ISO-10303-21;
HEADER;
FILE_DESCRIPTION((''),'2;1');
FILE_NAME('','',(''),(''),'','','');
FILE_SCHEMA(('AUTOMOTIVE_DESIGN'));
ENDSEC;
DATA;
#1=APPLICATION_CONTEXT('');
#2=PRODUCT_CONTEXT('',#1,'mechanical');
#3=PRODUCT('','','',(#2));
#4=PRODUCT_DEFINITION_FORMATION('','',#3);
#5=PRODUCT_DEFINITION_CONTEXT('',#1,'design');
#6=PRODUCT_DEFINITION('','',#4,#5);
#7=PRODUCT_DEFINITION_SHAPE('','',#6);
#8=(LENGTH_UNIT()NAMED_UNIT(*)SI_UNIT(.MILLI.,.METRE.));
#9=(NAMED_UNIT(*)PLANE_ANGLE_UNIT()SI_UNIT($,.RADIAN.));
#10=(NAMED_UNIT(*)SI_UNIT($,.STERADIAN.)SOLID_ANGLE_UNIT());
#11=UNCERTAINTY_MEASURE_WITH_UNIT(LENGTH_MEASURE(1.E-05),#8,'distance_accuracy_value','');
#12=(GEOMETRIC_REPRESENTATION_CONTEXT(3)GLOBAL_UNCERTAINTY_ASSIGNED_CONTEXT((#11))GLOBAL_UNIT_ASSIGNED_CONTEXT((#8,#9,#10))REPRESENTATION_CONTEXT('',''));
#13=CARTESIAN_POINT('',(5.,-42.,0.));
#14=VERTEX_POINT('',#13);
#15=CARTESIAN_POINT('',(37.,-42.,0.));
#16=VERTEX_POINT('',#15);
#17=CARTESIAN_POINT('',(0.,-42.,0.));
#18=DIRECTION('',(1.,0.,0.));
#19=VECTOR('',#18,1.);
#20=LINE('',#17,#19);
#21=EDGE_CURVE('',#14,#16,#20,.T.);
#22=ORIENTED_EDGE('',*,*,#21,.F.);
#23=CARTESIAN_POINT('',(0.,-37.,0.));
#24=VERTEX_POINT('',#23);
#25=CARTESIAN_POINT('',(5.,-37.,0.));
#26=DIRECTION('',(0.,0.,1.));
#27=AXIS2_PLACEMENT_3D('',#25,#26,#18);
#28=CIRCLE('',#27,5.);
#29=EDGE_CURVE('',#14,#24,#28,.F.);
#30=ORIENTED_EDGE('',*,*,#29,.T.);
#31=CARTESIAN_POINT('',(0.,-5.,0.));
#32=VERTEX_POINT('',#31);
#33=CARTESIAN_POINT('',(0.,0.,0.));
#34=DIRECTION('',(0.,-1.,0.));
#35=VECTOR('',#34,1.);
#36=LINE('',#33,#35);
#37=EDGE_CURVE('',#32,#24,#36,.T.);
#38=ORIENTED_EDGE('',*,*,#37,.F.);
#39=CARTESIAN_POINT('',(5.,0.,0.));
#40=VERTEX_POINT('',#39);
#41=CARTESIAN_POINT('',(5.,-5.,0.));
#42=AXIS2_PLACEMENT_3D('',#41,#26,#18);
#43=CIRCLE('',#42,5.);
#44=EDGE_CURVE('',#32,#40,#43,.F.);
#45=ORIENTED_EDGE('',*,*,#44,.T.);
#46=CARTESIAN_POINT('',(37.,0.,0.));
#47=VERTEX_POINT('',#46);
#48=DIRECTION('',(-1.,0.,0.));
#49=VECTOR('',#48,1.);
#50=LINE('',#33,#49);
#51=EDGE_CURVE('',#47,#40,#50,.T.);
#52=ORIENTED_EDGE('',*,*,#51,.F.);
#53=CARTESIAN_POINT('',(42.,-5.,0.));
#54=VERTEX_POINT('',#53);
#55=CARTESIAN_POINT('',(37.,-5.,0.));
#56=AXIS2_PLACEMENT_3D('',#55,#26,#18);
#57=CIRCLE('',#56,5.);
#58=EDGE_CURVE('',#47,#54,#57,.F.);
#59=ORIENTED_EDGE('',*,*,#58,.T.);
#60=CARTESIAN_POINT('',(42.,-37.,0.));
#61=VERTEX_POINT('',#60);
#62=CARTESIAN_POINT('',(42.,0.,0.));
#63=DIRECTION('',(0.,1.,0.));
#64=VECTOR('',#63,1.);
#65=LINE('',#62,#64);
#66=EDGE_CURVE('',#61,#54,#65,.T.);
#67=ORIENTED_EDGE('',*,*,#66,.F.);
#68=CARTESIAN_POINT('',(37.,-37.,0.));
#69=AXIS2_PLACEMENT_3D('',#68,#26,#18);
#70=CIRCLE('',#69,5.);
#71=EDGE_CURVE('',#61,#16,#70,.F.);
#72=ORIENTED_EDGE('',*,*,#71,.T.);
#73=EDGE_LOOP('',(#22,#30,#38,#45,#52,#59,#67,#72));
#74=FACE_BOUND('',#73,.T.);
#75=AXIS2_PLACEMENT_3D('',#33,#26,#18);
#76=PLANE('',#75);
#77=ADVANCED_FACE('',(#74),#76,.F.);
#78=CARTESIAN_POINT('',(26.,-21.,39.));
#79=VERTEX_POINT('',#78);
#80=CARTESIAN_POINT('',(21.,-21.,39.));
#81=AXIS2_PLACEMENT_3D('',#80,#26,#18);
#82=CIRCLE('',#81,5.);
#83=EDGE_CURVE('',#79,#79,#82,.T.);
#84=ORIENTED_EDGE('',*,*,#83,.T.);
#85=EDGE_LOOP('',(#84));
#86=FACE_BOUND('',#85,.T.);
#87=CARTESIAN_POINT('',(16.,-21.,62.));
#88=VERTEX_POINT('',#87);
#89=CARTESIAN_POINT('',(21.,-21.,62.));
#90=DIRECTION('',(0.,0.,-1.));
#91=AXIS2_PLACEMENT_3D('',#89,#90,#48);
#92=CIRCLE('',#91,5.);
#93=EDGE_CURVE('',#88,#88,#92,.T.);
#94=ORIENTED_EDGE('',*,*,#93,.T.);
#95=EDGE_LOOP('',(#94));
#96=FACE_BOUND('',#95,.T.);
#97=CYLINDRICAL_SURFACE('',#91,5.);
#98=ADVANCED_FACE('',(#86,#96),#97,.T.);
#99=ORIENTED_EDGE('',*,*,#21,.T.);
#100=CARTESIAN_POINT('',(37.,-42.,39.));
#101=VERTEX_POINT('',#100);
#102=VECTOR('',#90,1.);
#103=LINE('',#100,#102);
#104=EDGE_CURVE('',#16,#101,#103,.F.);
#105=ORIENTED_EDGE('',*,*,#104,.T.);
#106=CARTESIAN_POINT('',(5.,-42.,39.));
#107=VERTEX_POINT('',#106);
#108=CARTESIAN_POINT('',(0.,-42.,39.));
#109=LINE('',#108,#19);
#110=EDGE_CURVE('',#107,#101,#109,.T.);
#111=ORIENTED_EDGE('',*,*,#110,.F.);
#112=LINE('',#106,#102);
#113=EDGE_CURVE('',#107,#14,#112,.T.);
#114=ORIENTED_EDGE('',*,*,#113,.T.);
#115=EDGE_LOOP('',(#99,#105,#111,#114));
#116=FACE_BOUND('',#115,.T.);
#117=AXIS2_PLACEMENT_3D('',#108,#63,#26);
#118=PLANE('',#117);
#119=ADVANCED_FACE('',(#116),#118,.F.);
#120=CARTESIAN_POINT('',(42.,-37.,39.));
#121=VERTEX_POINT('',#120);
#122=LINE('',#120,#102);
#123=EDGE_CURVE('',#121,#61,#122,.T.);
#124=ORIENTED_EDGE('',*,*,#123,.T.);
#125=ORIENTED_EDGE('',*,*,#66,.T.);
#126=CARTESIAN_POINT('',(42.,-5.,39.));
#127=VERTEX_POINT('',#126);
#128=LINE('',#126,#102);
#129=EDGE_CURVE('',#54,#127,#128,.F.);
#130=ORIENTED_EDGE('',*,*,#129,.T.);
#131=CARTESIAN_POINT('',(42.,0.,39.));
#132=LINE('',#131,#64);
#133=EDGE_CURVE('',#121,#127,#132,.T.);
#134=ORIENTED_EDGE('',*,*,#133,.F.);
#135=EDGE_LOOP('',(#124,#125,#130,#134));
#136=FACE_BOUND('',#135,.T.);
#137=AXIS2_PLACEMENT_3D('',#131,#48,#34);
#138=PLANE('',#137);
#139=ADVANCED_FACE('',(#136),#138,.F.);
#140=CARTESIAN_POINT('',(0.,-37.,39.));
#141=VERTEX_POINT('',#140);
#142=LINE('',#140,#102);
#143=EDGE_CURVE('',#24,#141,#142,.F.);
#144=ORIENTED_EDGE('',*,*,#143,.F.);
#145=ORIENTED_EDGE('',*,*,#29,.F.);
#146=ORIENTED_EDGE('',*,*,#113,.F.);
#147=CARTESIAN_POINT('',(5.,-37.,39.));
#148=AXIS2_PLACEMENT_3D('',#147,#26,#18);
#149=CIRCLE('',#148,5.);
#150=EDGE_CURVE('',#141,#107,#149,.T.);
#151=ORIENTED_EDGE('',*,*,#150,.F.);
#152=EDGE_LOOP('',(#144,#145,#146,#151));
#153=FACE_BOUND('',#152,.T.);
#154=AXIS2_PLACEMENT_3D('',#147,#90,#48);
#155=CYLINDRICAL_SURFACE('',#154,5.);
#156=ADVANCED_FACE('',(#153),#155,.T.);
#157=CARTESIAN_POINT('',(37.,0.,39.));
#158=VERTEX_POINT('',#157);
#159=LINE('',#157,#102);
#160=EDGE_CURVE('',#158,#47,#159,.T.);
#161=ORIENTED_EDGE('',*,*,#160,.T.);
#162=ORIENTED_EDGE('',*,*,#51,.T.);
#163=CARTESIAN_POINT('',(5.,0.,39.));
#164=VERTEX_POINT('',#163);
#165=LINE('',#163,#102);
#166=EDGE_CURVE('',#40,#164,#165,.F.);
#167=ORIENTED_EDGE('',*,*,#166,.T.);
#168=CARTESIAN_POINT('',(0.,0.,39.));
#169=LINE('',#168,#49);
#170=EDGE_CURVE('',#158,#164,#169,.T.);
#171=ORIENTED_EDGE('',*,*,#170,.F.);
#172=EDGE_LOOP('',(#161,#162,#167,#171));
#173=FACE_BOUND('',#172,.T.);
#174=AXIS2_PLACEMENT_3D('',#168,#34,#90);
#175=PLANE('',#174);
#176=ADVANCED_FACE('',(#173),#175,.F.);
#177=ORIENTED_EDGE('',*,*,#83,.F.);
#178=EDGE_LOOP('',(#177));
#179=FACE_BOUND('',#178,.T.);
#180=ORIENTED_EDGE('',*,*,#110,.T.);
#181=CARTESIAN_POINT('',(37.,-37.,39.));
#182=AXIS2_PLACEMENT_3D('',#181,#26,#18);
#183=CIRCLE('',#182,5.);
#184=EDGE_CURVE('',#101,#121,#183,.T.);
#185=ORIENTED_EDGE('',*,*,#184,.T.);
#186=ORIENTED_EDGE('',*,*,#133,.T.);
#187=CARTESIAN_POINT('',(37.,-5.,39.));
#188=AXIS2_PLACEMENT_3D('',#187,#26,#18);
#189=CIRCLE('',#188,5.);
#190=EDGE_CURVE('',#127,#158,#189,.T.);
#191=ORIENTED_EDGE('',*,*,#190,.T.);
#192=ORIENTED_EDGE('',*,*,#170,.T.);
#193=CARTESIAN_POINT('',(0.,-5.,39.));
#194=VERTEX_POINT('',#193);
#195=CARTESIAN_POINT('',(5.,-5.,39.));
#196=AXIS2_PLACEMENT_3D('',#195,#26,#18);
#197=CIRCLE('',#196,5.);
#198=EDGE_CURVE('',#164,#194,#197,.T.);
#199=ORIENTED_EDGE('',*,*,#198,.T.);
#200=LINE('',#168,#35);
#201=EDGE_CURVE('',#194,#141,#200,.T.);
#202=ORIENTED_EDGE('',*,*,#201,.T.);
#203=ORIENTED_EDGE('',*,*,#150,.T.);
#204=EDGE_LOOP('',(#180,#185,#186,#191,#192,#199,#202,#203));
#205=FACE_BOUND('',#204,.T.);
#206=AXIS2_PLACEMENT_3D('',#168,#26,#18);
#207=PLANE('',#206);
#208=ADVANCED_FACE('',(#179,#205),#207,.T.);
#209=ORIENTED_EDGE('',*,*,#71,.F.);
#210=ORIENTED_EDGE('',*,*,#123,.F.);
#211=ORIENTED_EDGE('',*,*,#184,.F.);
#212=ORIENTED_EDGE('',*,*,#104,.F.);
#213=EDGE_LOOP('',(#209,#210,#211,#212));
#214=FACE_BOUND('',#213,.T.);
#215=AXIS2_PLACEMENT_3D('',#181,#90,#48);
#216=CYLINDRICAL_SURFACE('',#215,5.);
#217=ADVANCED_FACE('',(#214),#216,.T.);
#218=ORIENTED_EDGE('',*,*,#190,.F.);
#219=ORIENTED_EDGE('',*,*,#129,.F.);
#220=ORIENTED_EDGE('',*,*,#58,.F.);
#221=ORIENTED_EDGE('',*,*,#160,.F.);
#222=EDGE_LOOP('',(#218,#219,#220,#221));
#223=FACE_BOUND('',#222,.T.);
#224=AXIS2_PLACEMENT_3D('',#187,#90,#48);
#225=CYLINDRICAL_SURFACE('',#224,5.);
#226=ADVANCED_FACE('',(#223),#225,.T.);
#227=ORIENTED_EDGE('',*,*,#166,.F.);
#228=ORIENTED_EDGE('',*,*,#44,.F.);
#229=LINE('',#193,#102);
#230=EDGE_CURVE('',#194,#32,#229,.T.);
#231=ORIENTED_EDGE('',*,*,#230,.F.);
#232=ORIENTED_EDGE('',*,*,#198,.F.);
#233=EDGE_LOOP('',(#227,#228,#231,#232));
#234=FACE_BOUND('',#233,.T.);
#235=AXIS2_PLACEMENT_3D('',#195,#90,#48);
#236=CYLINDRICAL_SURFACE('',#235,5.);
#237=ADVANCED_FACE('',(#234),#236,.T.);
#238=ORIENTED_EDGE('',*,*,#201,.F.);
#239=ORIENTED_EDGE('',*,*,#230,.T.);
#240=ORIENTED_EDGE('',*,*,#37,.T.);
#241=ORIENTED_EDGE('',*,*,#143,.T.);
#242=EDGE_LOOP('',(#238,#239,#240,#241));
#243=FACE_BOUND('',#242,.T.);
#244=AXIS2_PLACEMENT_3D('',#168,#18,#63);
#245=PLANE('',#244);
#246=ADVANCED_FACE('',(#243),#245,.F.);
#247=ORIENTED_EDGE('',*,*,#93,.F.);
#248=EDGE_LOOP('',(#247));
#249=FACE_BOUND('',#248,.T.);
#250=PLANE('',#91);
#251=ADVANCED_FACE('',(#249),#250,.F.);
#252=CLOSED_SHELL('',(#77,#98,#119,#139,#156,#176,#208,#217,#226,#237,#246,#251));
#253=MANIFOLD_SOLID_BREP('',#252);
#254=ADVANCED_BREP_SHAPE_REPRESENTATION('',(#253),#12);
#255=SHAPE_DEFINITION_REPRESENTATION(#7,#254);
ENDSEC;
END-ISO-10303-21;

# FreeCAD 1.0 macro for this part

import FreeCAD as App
import Part
import Sketcher

V = App.Vector
Q = App.Units.Quantity


def edges_at(feature, points):
    """Names of the edges that pass closest to the given points."""
    edges = feature.Shape.Edges
    near = lambda p: min(range(len(edges)), key=lambda i: edges[i].distToShape(Part.Vertex(*p))[0])
    return sorted({f"Edge{near(p) + 1}" for p in points})


def add_polygon(sketch, points):
    """Adds a closed chain of lines whose ends are joined by coincident constraints."""
    first, n = sketch.GeometryCount, len(points)
    for a, b in zip(points, points[1:] + points[:1]):
        sketch.addGeometry(Part.LineSegment(App.Vector(*a, 0), App.Vector(*b, 0)), False)
    for i in range(n):
        sketch.addConstraint(Sketcher.Constraint("Coincident", first + i, 2, first + (i + 1) % n, 1))

doc = App.newDocument("Part")
body = doc.addObject("PartDesign::Body", "Body")

# Sketch on XY plane
sketch1 = body.newObject("Sketcher::SketchObject", "Sketch")
sketch1.AttachmentSupport = (doc.getObject("XY_Plane"), [""])
sketch1.MapMode = "FlatFace"
add_polygon(sketch1, [(0, 0), (0, -42), (42, -42), (42, 0)])  # lines 0-3
sketch1.addConstraint([
    Sketcher.Constraint("Vertical", 0),
    Sketcher.Constraint("Horizontal", 1),
    Sketcher.Constraint("Vertical", 2),
    Sketcher.Constraint("Horizontal", 3),
    Sketcher.Constraint("Coincident", 3, 2, -1, 1),
    Sketcher.Constraint("Equal", 3, 0),
    Sketcher.Constraint("DistanceX", 1, 1, 1, 2, Q("42 mm")),
])
pad1 = body.newObject("PartDesign::Pad", "Pad")
pad1.Profile = sketch1
pad1.Length = 39
doc.recompute()

fillet = body.newObject("PartDesign::Fillet", "Fillet")
fillet.Base = (pad1, edges_at(pad1, [
    (0, 0, 19.5),
    (42, 0, 19.5),
    (42, -42, 19.5),
    (0, -42, 19.5),
]))
fillet.Radius = 5

# Sketch on XY plane
sketch2 = body.newObject("Sketcher::SketchObject", "Sketch001")
sketch2.AttachmentSupport = (doc.getObject("XY_Plane"), [""])
sketch2.MapMode = "FlatFace"
sketch2.addGeometry(Part.Circle(V(21, -21, 0), V(0, 0, 1), 5), False)
sketch2.addConstraint([
    Sketcher.Constraint("Diameter", 0, Q("10 mm")),
    Sketcher.Constraint("DistanceX", -1, 1, 0, 3, Q("21 mm")),
    Sketcher.Constraint("DistanceY", 0, 3, -1, 1, Q("21 mm")),
])
pad2 = body.newObject("PartDesign::Pad", "Pad001")
pad2.Profile = sketch2
pad2.Length = 23
pad2.Reversed = True

# Sketch on XY plane
sketch3 = body.newObject("Sketcher::SketchObject", "Sketch002")
sketch3.AttachmentSupport = (doc.getObject("XY_Plane"), [""])
sketch3.MapMode = "FlatFace"
sketch3.AttachmentOffset = App.Placement(V(0, 0, -23), App.Rotation())
sketch3.addGeometry(Part.Circle(V(21, -21, 0), V(0, 0, 1), 5), False)
sketch3.addConstraint([
    Sketcher.Constraint("Diameter", 0, Q("10 mm")),
    Sketcher.Constraint("DistanceX", -1, 1, 0, 3, Q("21 mm")),
    Sketcher.Constraint("DistanceY", 0, 3, -1, 1, Q("21 mm")),
])
pad3 = body.newObject("PartDesign::Pad", "Pad002")
pad3.Profile = sketch3
pad3.Length = 85

# Sketch on XY plane
sketch4 = body.newObject("Sketcher::SketchObject", "Sketch003")
sketch4.AttachmentSupport = (doc.getObject("XY_Plane"), [""])
sketch4.MapMode = "FlatFace"
sketch4.AttachmentOffset = App.Placement(V(0, 0, -23), App.Rotation())
sketch4.addGeometry(Part.Circle(V(21, -21, 0), V(0, 0, 1), 5), False)
sketch4.addConstraint([
    Sketcher.Constraint("Diameter", 0, Q("10 mm")),
    Sketcher.Constraint("DistanceX", -1, 1, 0, 3, Q("21 mm")),
    Sketcher.Constraint("DistanceY", 0, 3, -1, 1, Q("21 mm")),
])
pocket1 = body.newObject("PartDesign::Pocket", "Pocket")
pocket1.Profile = sketch4
pocket1.Length = 23
pocket1.Reversed = True

doc.recompute()
